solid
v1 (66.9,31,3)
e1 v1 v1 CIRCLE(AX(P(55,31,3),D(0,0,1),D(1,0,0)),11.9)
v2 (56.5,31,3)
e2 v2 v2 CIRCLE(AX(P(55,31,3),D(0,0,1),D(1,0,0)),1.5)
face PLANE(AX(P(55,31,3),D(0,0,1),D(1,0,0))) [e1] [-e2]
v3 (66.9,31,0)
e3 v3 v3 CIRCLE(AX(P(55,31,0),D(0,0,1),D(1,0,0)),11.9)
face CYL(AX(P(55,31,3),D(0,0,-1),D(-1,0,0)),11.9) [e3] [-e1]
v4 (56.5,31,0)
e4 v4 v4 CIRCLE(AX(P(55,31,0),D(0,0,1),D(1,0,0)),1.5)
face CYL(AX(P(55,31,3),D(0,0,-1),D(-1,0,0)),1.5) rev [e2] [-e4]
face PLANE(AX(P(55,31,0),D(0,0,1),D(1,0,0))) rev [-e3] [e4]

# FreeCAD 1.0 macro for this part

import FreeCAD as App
import Part
import Sketcher
from FreeCAD import Vector
Q = App.Units.Quantity

doc = App.newDocument("Part")
params = doc.addObject("Spreadsheet::Sheet", "Params")
for row, (alias, value) in enumerate([
    ("sketch1_diameter", "3 mm"),
    ("sketch1_diameter2", "23.8 mm"),
    ("pad1_length", "3 mm"),
], start=1):
    params.set(f"A{row}", alias)
    params.set(f"B{row}", "=" + value)
    params.setAlias(f"B{row}", alias)

body = doc.addObject("PartDesign::Body", "Body")

sketch1 = body.newObject("Sketcher::SketchObject", "Sketch")
sketch1.AttachmentSupport = (doc.getObject("XY_Plane"), [""])
sketch1.MapMode = "FlatFace"
sketch1.addGeometry([
    Part.Circle(Vector(55, 31, 0), Vector(0, 0, 1), 11.9),
    Part.Circle(Vector(55, 31, 0), Vector(0, 0, 1), 1.5),
], False)
sketch1.addConstraint([
    Sketcher.Constraint("Coincident", 1, 3, 0, 3),
    Sketcher.Constraint("Diameter", 1, Q("3 mm")),
    Sketcher.Constraint("Diameter", 0, Q("23.8 mm")),
    Sketcher.Constraint("DistanceX", -1, 1, 0, 3, Q("55 mm")),
    Sketcher.Constraint("DistanceY", -1, 1, 0, 3, Q("31 mm")),
])
sketch1.setExpression("Constraints[1]", "Params.sketch1_diameter")
sketch1.setExpression("Constraints[2]", "Params.sketch1_diameter2")
pad1 = body.newObject("PartDesign::Pad", "Pad")
pad1.Profile = sketch1
pad1.setExpression("Length", "Params.pad1_length")

doc.recompute()
